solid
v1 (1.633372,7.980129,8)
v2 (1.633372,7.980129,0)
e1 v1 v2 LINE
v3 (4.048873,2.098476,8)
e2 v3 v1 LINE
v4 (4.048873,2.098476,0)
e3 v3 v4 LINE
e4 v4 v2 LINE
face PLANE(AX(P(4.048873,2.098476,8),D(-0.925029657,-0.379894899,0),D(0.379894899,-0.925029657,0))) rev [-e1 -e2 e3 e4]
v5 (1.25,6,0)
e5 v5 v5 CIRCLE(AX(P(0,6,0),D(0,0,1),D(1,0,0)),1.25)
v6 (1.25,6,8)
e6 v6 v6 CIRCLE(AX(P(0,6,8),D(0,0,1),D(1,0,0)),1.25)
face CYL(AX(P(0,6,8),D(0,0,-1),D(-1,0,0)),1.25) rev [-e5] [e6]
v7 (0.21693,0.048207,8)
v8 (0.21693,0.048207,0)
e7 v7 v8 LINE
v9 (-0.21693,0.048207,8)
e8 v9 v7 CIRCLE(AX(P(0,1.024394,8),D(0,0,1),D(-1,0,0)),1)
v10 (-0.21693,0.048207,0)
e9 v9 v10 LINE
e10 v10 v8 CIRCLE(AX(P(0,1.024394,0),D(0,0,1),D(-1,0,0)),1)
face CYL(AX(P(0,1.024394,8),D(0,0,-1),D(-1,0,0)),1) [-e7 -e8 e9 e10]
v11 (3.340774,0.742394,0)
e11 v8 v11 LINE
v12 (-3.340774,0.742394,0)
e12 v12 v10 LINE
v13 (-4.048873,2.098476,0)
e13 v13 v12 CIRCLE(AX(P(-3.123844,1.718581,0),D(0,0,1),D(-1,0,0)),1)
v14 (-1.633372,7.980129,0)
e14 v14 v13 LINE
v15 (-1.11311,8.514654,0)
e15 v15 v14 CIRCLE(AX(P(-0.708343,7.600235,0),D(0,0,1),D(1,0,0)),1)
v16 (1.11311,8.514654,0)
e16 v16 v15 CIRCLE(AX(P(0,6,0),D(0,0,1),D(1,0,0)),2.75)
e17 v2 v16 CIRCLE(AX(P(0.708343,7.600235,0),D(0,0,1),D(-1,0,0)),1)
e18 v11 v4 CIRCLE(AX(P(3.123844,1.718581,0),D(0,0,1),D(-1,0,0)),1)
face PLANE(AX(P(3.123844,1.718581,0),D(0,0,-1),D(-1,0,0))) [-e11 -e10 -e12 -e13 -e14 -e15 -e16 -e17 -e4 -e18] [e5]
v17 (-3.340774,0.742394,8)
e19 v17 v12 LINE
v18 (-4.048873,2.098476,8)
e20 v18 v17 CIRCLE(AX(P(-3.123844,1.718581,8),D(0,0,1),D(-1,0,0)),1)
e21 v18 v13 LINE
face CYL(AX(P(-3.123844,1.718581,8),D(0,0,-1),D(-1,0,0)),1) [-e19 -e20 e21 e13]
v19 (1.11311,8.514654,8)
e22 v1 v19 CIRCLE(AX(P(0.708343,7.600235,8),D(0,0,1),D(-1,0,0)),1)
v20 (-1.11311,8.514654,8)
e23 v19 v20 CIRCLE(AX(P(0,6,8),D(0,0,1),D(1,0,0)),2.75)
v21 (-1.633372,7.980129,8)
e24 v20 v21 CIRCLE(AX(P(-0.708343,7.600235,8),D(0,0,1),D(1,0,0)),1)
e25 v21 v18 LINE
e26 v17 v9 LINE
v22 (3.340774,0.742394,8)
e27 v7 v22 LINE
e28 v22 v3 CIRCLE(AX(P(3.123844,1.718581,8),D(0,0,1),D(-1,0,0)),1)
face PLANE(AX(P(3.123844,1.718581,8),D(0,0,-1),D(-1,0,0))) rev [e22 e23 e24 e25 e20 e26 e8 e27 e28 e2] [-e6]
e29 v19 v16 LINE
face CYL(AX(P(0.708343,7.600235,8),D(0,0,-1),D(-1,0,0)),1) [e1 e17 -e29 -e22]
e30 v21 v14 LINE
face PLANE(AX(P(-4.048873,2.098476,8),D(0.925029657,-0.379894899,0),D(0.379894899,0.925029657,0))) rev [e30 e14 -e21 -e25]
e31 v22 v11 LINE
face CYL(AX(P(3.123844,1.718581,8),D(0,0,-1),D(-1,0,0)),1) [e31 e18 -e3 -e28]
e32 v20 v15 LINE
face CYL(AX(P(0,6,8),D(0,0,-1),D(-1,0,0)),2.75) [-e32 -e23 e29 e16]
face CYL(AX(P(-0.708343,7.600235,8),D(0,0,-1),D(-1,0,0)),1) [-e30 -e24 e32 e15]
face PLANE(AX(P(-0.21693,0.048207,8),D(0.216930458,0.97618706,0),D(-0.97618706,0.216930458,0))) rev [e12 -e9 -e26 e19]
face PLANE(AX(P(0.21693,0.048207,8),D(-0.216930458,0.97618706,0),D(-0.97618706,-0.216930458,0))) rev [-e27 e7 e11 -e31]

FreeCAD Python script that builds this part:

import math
import FreeCAD as App
import Part
import Sketcher

doc = App.newDocument("Part")
body = doc.addObject("PartDesign::Body", "Body")

# Sketch on XY plane
sketch1 = body.newObject("Sketcher::SketchObject", "Sketch")
sketch1.AttachmentSupport = (doc.getObject("XY_Plane"), [""])
sketch1.MapMode = "FlatFace"
sketch1.addGeometry([
    Part.LineSegment(App.Vector(0.22, 0.05, 0), App.Vector(3.34, 0.74, 0)),  # 0
    Part.ArcOfCircle(Part.Circle(App.Vector(3.12, 1.72, 0), App.Vector(0, 0, 1), 1), math.radians(-77), math.radians(22)),  # 1
    Part.LineSegment(App.Vector(4.05, 2.1, 0), App.Vector(1.63, 7.98, 0)),  # 2
    Part.ArcOfCircle(Part.Circle(App.Vector(0.71, 7.6, 0), App.Vector(0, 0, 1), 1), math.radians(22), math.radians(66)),  # 3
    Part.ArcOfCircle(Part.Circle(App.Vector(0, 6, 0), App.Vector(0, 0, 1), 2.75), math.radians(66), math.radians(114)),  # 4
    Part.ArcOfCircle(Part.Circle(App.Vector(-0.71, 7.6, 0), App.Vector(0, 0, 1), 1), math.radians(114), math.radians(158)),  # 5
    Part.LineSegment(App.Vector(-1.63, 7.98, 0), App.Vector(-4.05, 2.1, 0)),  # 6
    Part.ArcOfCircle(Part.Circle(App.Vector(-3.12, 1.72, 0), App.Vector(0, 0, 1), 1), math.radians(158), math.radians(257)),  # 7
    Part.LineSegment(App.Vector(-3.34, 0.74, 0), App.Vector(-0.22, 0.05, 0)),  # 8
    Part.ArcOfCircle(Part.Circle(App.Vector(0, 1.02, 0), App.Vector(0, 0, 1), 1), math.radians(-103), math.radians(-77)),  # 9
    Part.Circle(App.Vector(0, 6, 0), App.Vector(0, 0, 1), 1.25),  # 10
], False)
sketch1.addConstraint([
    Sketcher.Constraint("Tangent", 0, 2, 1, 1),
    Sketcher.Constraint("Tangent", 1, 2, 2, 1),
    Sketcher.Constraint("Tangent", 2, 2, 3, 1),
    Sketcher.Constraint("Tangent", 3, 2, 4, 1),
    Sketcher.Constraint("Tangent", 4, 2, 5, 1),
    Sketcher.Constraint("Tangent", 5, 2, 6, 1),
    Sketcher.Constraint("Tangent", 6, 2, 7, 1),
    Sketcher.Constraint("Tangent", 7, 2, 8, 1),
    Sketcher.Constraint("Tangent", 8, 2, 9, 1),
    Sketcher.Constraint("Tangent", 9, 2, 0, 1),
    Sketcher.Constraint("Coincident", 10, 3, 4, 3),
    Sketcher.Constraint("Equal", 1, 3),
    Sketcher.Constraint("Equal", 3, 5),
    Sketcher.Constraint("Equal", 5, 7),
    Sketcher.Constraint("Equal", 7, 9),
    Sketcher.Constraint("Symmetric", 3, 3, 5, 3, -2),
    Sketcher.Constraint("Symmetric", 1, 3, 7, 3, -2),
    Sketcher.Constraint("PointOnObject", 9, 3, -2),
    Sketcher.Constraint("Radius", 1, 1.0),
    Sketcher.Constraint("Diameter", 10, 2.5),
    Sketcher.Constraint("Radius", 4, 2.75),
    Sketcher.Constraint("DistanceY", -1, 1, 4, 3, 6.0),
    Sketcher.Constraint("DistanceY", 0, 2, 9, 3, 0.282),
    Sketcher.Constraint("DistanceX", 3, 3, 1, 3, 2.415501),
    Sketcher.Constraint("DistanceX", 0, 2, 1, 2, 0.708099),
    Sketcher.Constraint("Distance", 2, 6.35834),
])
pad1 = body.newObject("PartDesign::Pad", "Pad")
pad1.Profile = sketch1
pad1.Length = 8

doc.recompute()
